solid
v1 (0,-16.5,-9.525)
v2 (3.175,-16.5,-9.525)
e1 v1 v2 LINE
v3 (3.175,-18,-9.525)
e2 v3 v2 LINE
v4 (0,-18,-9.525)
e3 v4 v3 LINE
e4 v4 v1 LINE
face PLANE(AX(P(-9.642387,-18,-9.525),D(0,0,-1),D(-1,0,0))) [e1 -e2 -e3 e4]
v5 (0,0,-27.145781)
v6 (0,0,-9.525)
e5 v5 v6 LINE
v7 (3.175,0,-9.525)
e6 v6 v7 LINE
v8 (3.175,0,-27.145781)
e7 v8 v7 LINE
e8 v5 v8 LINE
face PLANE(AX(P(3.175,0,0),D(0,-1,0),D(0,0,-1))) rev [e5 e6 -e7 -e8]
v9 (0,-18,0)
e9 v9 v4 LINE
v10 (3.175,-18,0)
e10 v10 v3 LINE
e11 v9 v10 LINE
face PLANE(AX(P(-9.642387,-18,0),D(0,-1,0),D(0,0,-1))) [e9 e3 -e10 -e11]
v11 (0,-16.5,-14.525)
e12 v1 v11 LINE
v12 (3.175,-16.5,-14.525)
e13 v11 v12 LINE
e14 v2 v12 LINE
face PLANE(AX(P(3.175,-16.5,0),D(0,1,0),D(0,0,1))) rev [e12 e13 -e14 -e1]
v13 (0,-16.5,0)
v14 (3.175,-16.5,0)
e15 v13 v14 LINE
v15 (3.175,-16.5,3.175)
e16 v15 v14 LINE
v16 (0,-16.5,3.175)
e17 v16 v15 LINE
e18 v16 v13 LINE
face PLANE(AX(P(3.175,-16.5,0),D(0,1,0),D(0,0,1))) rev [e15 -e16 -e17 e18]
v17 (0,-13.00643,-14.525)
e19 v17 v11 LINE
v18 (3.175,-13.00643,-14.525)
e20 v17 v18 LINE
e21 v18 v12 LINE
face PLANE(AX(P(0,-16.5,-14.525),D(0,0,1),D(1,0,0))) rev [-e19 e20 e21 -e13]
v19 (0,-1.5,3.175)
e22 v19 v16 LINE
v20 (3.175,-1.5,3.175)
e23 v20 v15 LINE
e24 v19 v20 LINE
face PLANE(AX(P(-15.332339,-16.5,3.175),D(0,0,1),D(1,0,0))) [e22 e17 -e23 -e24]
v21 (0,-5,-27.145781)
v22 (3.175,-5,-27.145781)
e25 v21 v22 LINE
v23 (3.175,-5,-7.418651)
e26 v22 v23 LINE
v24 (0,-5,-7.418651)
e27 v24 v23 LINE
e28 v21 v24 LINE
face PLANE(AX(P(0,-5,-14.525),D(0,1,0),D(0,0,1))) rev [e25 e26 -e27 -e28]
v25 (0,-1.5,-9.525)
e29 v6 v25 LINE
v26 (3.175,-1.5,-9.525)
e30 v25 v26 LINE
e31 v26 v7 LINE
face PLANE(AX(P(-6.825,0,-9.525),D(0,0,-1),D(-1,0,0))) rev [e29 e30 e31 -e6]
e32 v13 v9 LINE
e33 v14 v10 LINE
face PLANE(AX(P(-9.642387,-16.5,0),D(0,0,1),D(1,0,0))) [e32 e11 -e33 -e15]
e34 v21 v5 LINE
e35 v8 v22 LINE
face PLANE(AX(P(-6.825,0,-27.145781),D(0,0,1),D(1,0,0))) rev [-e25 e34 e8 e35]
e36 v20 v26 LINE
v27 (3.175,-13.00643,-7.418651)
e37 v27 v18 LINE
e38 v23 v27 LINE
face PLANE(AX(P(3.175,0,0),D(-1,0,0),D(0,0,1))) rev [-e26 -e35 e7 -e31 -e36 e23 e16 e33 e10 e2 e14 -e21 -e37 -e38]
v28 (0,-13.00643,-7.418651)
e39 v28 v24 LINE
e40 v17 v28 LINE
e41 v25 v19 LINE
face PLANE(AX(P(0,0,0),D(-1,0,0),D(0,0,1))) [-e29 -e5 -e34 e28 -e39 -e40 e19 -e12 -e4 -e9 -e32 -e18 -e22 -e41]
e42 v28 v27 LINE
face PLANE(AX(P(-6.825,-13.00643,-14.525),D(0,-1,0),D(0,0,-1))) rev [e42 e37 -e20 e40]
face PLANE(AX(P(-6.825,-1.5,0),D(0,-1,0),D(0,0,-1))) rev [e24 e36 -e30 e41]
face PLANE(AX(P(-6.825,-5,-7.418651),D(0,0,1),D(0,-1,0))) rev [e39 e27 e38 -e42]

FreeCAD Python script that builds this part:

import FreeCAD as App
import Part
import Sketcher
from FreeCAD import Vector
Q = App.Units.Quantity


def add_polygon(sketch, points):
    """Adds a closed chain of lines whose ends are joined by coincident constraints."""
    first, n = sketch.GeometryCount, len(points)
    for a, b in zip(points, points[1:] + points[:1]):
        sketch.addGeometry(Part.LineSegment(App.Vector(*a, 0), App.Vector(*b, 0)), False)
    for i in range(n):
        sketch.addConstraint(Sketcher.Constraint("Coincident", first + i, 2, first + (i + 1) % n, 1))

doc = App.newDocument("Part")
params = doc.addObject("Spreadsheet::Sheet", "Params")
for row, (alias, value) in enumerate([
    ("sketch1_height", "43 mm"),
    ("sketch1_width", "16.5 mm"),
    ("pad1_length", "3.175 mm"),
    ("sketch2_width", "1.5 mm"),
    ("pocket1_length", "10 mm"),
    ("sketch3_width", "11.5 mm"),
    ("sketch4_width", "15 mm"),
    ("pad2_length", "3.175 mm"),
    ("sketch5_width", "5 mm"),
    ("pocket3_length", "10 mm"),
    ("sketch6_width", "1.5 mm"),
    ("pad3_length", "3.175 mm"),
], start=1):
    params.set(f"A{row}", alias)
    params.set(f"B{row}", "=" + value)
    params.setAlias(f"B{row}", alias)

body = doc.addObject("PartDesign::Body", "Body")

# Sketch on YZ plane
sketch1 = body.newObject("Sketcher::SketchObject", "Sketch")
sketch1.AttachmentSupport = (doc.getObject("YZ_Plane"), [""])
sketch1.MapMode = "FlatFace"
add_polygon(sketch1, [(0, -43), (0, 0), (-16.5, 0), (-16.5, -43)])  # lines 0-3
sketch1.addConstraint([
    Sketcher.Constraint("Vertical", 0),
    Sketcher.Constraint("Horizontal", 1),
    Sketcher.Constraint("Vertical", 2),
    Sketcher.Constraint("Horizontal", 3),
    Sketcher.Constraint("Coincident", 0, 2, -1, 1),
    Sketcher.Constraint("DistanceY", 0, 1, 0, 2, Q("43 mm")),
    Sketcher.Constraint("DistanceX", 1, 2, 1, 1, Q("16.5 mm")),
])
sketch1.setExpression("Constraints[9]", "Params.sketch1_height")
sketch1.setExpression("Constraints[10]", "Params.sketch1_width")
pad1 = body.newObject("PartDesign::Pad", "Pad")
pad1.Profile = sketch1
pad1.setExpression("Length", "Params.pad1_length")

# Sketch on YZ plane
sketch2 = body.newObject("Sketcher::SketchObject", "Sketch001")
sketch2.AttachmentSupport = (doc.getObject("YZ_Plane"), [""])
sketch2.MapMode = "FlatFace"
sketch2.AttachmentOffset = App.Placement(Vector(0, 0, 3.175), App.Rotation())
add_polygon(sketch2, [(0, 0), (-1.5, 0), (-1.5, -9.525), (0, -9.525)])  # lines 0-3
sketch2.addConstraint([
    Sketcher.Constraint("Horizontal", 0),
    Sketcher.Constraint("Vertical", 1),
    Sketcher.Constraint("Horizontal", 2),
    Sketcher.Constraint("Vertical", 3),
    Sketcher.Constraint("Coincident", 3, 2, -1, 1),
    Sketcher.Constraint("DistanceX", 0, 2, 0, 1, Q("1.5 mm")),
    Sketcher.Constraint("DistanceY", 1, 2, 1, 1, Q("9.525 mm")),
])
sketch2.setExpression("Constraints[9]", "Params.sketch2_width")
pocket1 = body.newObject("PartDesign::Pocket", "Pocket")
pocket1.Profile = sketch2
pocket1.setExpression("Length", "Params.pocket1_length")

# Sketch on YZ plane
sketch3 = body.newObject("Sketcher::SketchObject", "Sketch002")
sketch3.AttachmentSupport = (doc.getObject("YZ_Plane"), [""])
sketch3.MapMode = "FlatFace"
sketch3.AttachmentOffset = App.Placement(Vector(0, 0, 3.175), App.Rotation())
add_polygon(sketch3, [(-5, -14.525), (-16.5, -14.525), (-16.5, -43), (-5, -43)])  # lines 0-3
sketch3.addConstraint([
    Sketcher.Constraint("Horizontal", 0),
    Sketcher.Constraint("Vertical", 1),
    Sketcher.Constraint("Horizontal", 2),
    Sketcher.Constraint("Vertical", 3),
    Sketcher.Constraint("DistanceX", 0, 2, 0, 1, Q("11.5 mm")),
    Sketcher.Constraint("DistanceY", 1, 2, -1, 1, Q("43 mm")),
    Sketcher.Constraint("DistanceX", 2, 2, -1, 1, Q("5 mm")),
    Sketcher.Constraint("DistanceY", 1, 2, 1, 1, Q("28.475 mm")),
])
sketch3.setExpression("Constraints[8]", "Params.sketch3_width")
pocket2 = body.newObject("PartDesign::Pocket", "Pocket001")
pocket2.Profile = sketch3
pocket2.Type = "ThroughAll"

# Sketch on YZ plane
sketch4 = body.newObject("Sketcher::SketchObject", "Sketch003")
sketch4.AttachmentSupport = (doc.getObject("YZ_Plane"), [""])
sketch4.MapMode = "FlatFace"
sketch4.AttachmentOffset = App.Placement(Vector(0, 0, 3.175), App.Rotation())
add_polygon(sketch4, [(-1.5, 3.175), (-16.5, 3.175), (-16.5, 0), (-1.5, 0)])  # lines 0-3
sketch4.addConstraint([
    Sketcher.Constraint("Horizontal", 0),
    Sketcher.Constraint("Vertical", 1),
    Sketcher.Constraint("Horizontal", 2),
    Sketcher.Constraint("Vertical", 3),
    Sketcher.Constraint("PointOnObject", 1, 2, -1),
    Sketcher.Constraint("DistanceX", 0, 2, 0, 1, Q("15 mm")),
    Sketcher.Constraint("DistanceX", 0, 2, -1, 1, Q("16.5 mm")),
    Sketcher.Constraint("DistanceY", 1, 2, 1, 1, Q("3.175 mm")),
])
sketch4.setExpression("Constraints[9]", "Params.sketch4_width")
pad2 = body.newObject("PartDesign::Pad", "Pad001")
pad2.Profile = sketch4
pad2.setExpression("Length", "Params.pad2_length")
pad2.Reversed = True

# Sketch on YZ plane
sketch5 = body.newObject("Sketcher::SketchObject", "Sketch004")
sketch5.AttachmentSupport = (doc.getObject("YZ_Plane"), [""])
sketch5.MapMode = "FlatFace"
sketch5.AttachmentOffset = App.Placement(Vector(0, 0, 3.175), App.Rotation())
add_polygon(sketch5, [(0, -27.145781), (-5, -27.145781), (-5, -43), (0, -43)])  # lines 0-3
add_polygon(sketch5, [(-5, -7.418651), (-13.00643, -7.418651), (-13.00643, -14.525), (-5, -14.525)])  # lines 4-7
sketch5.addConstraint([
    Sketcher.Constraint("Horizontal", 0),
    Sketcher.Constraint("Vertical", 1),
    Sketcher.Constraint("Horizontal", 2),
    Sketcher.Constraint("Vertical", 3),
    Sketcher.Constraint("Horizontal", 4),
    Sketcher.Constraint("Vertical", 5),
    Sketcher.Constraint("Horizontal", 6),
    Sketcher.Constraint("Vertical", 7),
    Sketcher.Constraint("PointOnObject", 2, 2, -2),
    Sketcher.Constraint("Vertical", 1, 2, 6, 2),
    Sketcher.Constraint("DistanceX", 0, 2, 0, 1, Q("5 mm")),
    Sketcher.Constraint("DistanceY", 1, 2, -1, 1, Q("43 mm")),
    Sketcher.Constraint("DistanceY", 5, 2, -1, 1, Q("14.525 mm")),
    Sketcher.Constraint("DistanceX", 4, 2, 4, 1, Q("8.00643 mm")),
    Sketcher.Constraint("DistanceY", 1, 2, 1, 1, Q("15.854219 mm")),
    Sketcher.Constraint("DistanceY", 5, 2, 5, 1, Q("7.106349 mm")),
])
sketch5.setExpression("Constraints[18]", "Params.sketch5_width")
pocket3 = body.newObject("PartDesign::Pocket", "Pocket002")
pocket3.Profile = sketch5
pocket3.setExpression("Length", "Params.pocket3_length")

# Sketch on YZ plane
sketch6 = body.newObject("Sketcher::SketchObject", "Sketch005")
sketch6.AttachmentSupport = (doc.getObject("YZ_Plane"), [""])
sketch6.MapMode = "FlatFace"
sketch6.AttachmentOffset = App.Placement(Vector(0, 0, 3.175), App.Rotation())
add_polygon(sketch6, [(-16.5, 0), (-18, 0), (-18, -9.525), (-16.5, -9.525)])  # lines 0-3
sketch6.addConstraint([
    Sketcher.Constraint("Horizontal", 0),
    Sketcher.Constraint("Vertical", 1),
    Sketcher.Constraint("Horizontal", 2),
    Sketcher.Constraint("Vertical", 3),
    Sketcher.Constraint("PointOnObject", 0, 2, -1),
    Sketcher.Constraint("DistanceX", 0, 2, 0, 1, Q("1.5 mm")),
    Sketcher.Constraint("DistanceX", 0, 2, -1, 1, Q("18 mm")),
    Sketcher.Constraint("DistanceY", 1, 2, 1, 1, Q("9.525 mm")),
])
sketch6.setExpression("Constraints[9]", "Params.sketch6_width")
pad3 = body.newObject("PartDesign::Pad", "Pad002")
pad3.Profile = sketch6
pad3.setExpression("Length", "Params.pad3_length")
pad3.Reversed = True

doc.recompute()
